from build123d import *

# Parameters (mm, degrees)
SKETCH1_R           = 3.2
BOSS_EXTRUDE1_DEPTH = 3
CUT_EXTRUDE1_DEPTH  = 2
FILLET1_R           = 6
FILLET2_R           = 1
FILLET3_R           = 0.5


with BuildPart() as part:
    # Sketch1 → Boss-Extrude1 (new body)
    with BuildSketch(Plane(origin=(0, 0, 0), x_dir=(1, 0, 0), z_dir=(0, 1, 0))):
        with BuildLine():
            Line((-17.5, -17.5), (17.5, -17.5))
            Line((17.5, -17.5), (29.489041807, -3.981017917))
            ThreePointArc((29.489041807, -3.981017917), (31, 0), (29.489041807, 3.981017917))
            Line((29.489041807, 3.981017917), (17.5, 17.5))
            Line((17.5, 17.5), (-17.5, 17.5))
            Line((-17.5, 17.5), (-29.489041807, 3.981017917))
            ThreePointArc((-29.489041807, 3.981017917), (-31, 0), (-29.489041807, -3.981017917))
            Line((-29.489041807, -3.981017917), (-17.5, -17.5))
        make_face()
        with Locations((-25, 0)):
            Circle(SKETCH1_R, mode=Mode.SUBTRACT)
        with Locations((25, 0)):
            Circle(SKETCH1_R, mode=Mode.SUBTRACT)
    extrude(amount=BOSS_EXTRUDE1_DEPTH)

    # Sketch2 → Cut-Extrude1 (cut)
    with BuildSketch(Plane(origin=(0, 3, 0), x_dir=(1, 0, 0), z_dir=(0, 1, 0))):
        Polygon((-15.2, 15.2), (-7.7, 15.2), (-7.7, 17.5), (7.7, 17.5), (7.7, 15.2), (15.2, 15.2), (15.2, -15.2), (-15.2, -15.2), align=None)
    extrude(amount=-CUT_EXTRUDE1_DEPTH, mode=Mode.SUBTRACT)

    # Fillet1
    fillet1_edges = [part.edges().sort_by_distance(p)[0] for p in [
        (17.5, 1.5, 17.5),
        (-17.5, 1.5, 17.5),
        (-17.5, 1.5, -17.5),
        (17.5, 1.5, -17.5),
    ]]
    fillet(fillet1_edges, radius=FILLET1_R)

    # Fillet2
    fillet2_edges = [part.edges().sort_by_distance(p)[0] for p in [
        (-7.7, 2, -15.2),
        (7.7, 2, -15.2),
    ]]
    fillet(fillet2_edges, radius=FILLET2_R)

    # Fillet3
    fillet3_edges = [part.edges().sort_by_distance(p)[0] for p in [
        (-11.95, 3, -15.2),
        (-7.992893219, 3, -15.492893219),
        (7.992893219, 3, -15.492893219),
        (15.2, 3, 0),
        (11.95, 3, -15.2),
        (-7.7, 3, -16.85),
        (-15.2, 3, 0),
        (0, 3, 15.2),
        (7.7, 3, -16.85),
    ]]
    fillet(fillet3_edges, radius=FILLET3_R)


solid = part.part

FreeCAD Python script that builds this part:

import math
import FreeCAD as App
import Part
import Sketcher
from FreeCAD import Vector


def edges_at(feature, points):
    """Names of the edges that pass closest to the given points."""
    edges = feature.Shape.Edges
    near = lambda p: min(range(len(edges)), key=lambda i: edges[i].distToShape(Part.Vertex(*p))[0])
    return sorted({f"Edge{near(p) + 1}" for p in points})

doc = App.newDocument("Part")
body = doc.addObject("PartDesign::Body", "Body")

sketch1 = body.newObject("Sketcher::SketchObject", "Sketch")
sketch1.AttachmentSupport = (doc.getObject("XZ_Plane"), [""])
sketch1.MapMode = "FlatFace"
sketch1.addGeometry([
    Part.LineSegment(Vector(-17.5, 17.5, 0), Vector(17.5, 17.5, 0)),
    Part.LineSegment(Vector(17.5, 17.5, 0), Vector(29.5, 4, 0)),
    Part.ArcOfCircle(Part.Circle(Vector(25, 0, 0), Vector(0, 0, 1), 6), math.radians(-42), math.radians(42)),
    Part.LineSegment(Vector(29.5, -4, 0), Vector(17.5, -17.5, 0)),
    Part.LineSegment(Vector(17.5, -17.5, 0), Vector(-17.5, -17.5, 0)),
    Part.LineSegment(Vector(-17.5, -17.5, 0), Vector(-29.5, -4, 0)),
    Part.ArcOfCircle(Part.Circle(Vector(-25, 0, 0), Vector(0, 0, 1), 6), math.radians(138), math.radians(222)),
    Part.LineSegment(Vector(-29.5, 4, 0), Vector(-17.5, 17.5, 0)),
    Part.Circle(Vector(-25, 0, 0), Vector(0, 0, 1), 3.2),
    Part.Circle(Vector(25, 0, 0), Vector(0, 0, 1), 3.2),
], False)
sketch1.addConstraint([
    Sketcher.Constraint("Coincident", 0, 2, 1, 1),
    Sketcher.Constraint("Tangent", 1, 2, 2, 2),
    Sketcher.Constraint("Tangent", 2, 1, 3, 1),
    Sketcher.Constraint("Coincident", 3, 2, 4, 1),
    Sketcher.Constraint("Coincident", 4, 2, 5, 1),
    Sketcher.Constraint("Tangent", 5, 2, 6, 2),
    Sketcher.Constraint("Tangent", 6, 1, 7, 1),
    Sketcher.Constraint("Coincident", 7, 2, 0, 1),
    Sketcher.Constraint("Horizontal", 0),
    Sketcher.Constraint("Horizontal", 4),
    Sketcher.Constraint("Coincident", 8, 3, 6, 3),
    Sketcher.Constraint("Coincident", 9, 3, 2, 3),
    Sketcher.Constraint("Equal", 2, 6),
    Sketcher.Constraint("Equal", 8, 9),
    Sketcher.Constraint("Symmetric", 2, 3, 6, 3, -1, 1),
    Sketcher.Constraint("Symmetric", 0, 2, 4, 2, -1, 1),
    Sketcher.Constraint("Symmetric", 2, 1, 5, 2, -2),
    Sketcher.Constraint("Parallel", 3, 7),
    Sketcher.Constraint("Radius", 2, 6.0),
    Sketcher.Constraint("Diameter", 8, 6.4),
    Sketcher.Constraint("DistanceX", 0, 1, 0, 2, 35.0),
    Sketcher.Constraint("DistanceX", -1, 1, 2, 3, 25.0),
    Sketcher.Constraint("DistanceY", 3, 2, 0, 2, 35.0),
])
pad1 = body.newObject("PartDesign::Pad", "Pad")
pad1.Profile = sketch1
pad1.Length = 3
pad1.Reversed = True

sketch2 = body.newObject("Sketcher::SketchObject", "Sketch001")
sketch2.AttachmentSupport = (doc.getObject("XZ_Plane"), [""])
sketch2.MapMode = "FlatFace"
sketch2.AttachmentOffset = App.Placement(Vector(0, 0, -3), App.Rotation())
sketch2.addGeometry([
    Part.LineSegment(Vector(-7.7, -15.2, 0), Vector(-15.2, -15.2, 0)),
    Part.LineSegment(Vector(-15.2, -15.2, 0), Vector(-15.2, 15.2, 0)),
    Part.LineSegment(Vector(-15.2, 15.2, 0), Vector(15.2, 15.2, 0)),
    Part.LineSegment(Vector(15.2, 15.2, 0), Vector(15.2, -15.2, 0)),
    Part.LineSegment(Vector(15.2, -15.2, 0), Vector(7.7, -15.2, 0)),
    Part.LineSegment(Vector(7.7, -15.2, 0), Vector(7.7, -17.5, 0)),
    Part.LineSegment(Vector(7.7, -17.5, 0), Vector(-7.7, -17.5, 0)),
    Part.LineSegment(Vector(-7.7, -17.5, 0), Vector(-7.7, -15.2, 0)),
], False)
sketch2.addConstraint([
    Sketcher.Constraint("Coincident", 0, 2, 1, 1),
    Sketcher.Constraint("Coincident", 1, 2, 2, 1),
    Sketcher.Constraint("Coincident", 2, 2, 3, 1),
    Sketcher.Constraint("Coincident", 3, 2, 4, 1),
    Sketcher.Constraint("Coincident", 4, 2, 5, 1),
    Sketcher.Constraint("Coincident", 5, 2, 6, 1),
    Sketcher.Constraint("Coincident", 6, 2, 7, 1),
    Sketcher.Constraint("Coincident", 7, 2, 0, 1),
    Sketcher.Constraint("Horizontal", 0),
    Sketcher.Constraint("Vertical", 1),
    Sketcher.Constraint("Horizontal", 2),
    Sketcher.Constraint("Vertical", 3),
    Sketcher.Constraint("Horizontal", 4),
    Sketcher.Constraint("Vertical", 5),
    Sketcher.Constraint("Horizontal", 6),
    Sketcher.Constraint("Vertical", 7),
    Sketcher.Constraint("Symmetric", 0, 2, 2, 2, -1, 1),
    Sketcher.Constraint("Symmetric", 4, 2, 7, 2, -2),
    Sketcher.Constraint("Equal", 2, 1),
    Sketcher.Constraint("DistanceX", 0, 2, 0, 1, 7.5),
    Sketcher.Constraint("DistanceX", 2, 1, 2, 2, 30.4),
    Sketcher.Constraint("DistanceY", 5, 2, 5, 1, 2.3),
])
pocket1 = body.newObject("PartDesign::Pocket", "Pocket")
pocket1.Profile = sketch2
pocket1.Length = 2
pocket1.Reversed = True
doc.recompute()

fillet = body.newObject("PartDesign::Fillet", "Fillet")
fillet.Base = (pocket1, edges_at(pocket1, [
    (17.5, 1.5, 17.5),
    (-17.5, 1.5, 17.5),
    (-17.5, 1.5, -17.5),
    (17.5, 1.5, -17.5),
]))
fillet.Radius = 6
doc.recompute()

fillet2 = body.newObject("PartDesign::Fillet", "Fillet001")
fillet2.Base = (fillet, edges_at(fillet, [(-7.7, 2, -15.2), (7.7, 2, -15.2)]))
fillet2.Radius = 1
doc.recompute()

fillet3 = body.newObject("PartDesign::Fillet", "Fillet002")
fillet3.Base = (fillet2, edges_at(fillet2, [
    (-11.95, 3, -15.2),
    (-7.993, 3, -15.493),
    (7.993, 3, -15.493),
    (15.2, 3, 0),
    (11.95, 3, -15.2),
    (-7.7, 3, -16.85),
    (-15.2, 3, 0),
    (0, 3, 15.2),
    (7.7, 3, -16.85),
]))
fillet3.Radius = 0.5

doc.recompute()
